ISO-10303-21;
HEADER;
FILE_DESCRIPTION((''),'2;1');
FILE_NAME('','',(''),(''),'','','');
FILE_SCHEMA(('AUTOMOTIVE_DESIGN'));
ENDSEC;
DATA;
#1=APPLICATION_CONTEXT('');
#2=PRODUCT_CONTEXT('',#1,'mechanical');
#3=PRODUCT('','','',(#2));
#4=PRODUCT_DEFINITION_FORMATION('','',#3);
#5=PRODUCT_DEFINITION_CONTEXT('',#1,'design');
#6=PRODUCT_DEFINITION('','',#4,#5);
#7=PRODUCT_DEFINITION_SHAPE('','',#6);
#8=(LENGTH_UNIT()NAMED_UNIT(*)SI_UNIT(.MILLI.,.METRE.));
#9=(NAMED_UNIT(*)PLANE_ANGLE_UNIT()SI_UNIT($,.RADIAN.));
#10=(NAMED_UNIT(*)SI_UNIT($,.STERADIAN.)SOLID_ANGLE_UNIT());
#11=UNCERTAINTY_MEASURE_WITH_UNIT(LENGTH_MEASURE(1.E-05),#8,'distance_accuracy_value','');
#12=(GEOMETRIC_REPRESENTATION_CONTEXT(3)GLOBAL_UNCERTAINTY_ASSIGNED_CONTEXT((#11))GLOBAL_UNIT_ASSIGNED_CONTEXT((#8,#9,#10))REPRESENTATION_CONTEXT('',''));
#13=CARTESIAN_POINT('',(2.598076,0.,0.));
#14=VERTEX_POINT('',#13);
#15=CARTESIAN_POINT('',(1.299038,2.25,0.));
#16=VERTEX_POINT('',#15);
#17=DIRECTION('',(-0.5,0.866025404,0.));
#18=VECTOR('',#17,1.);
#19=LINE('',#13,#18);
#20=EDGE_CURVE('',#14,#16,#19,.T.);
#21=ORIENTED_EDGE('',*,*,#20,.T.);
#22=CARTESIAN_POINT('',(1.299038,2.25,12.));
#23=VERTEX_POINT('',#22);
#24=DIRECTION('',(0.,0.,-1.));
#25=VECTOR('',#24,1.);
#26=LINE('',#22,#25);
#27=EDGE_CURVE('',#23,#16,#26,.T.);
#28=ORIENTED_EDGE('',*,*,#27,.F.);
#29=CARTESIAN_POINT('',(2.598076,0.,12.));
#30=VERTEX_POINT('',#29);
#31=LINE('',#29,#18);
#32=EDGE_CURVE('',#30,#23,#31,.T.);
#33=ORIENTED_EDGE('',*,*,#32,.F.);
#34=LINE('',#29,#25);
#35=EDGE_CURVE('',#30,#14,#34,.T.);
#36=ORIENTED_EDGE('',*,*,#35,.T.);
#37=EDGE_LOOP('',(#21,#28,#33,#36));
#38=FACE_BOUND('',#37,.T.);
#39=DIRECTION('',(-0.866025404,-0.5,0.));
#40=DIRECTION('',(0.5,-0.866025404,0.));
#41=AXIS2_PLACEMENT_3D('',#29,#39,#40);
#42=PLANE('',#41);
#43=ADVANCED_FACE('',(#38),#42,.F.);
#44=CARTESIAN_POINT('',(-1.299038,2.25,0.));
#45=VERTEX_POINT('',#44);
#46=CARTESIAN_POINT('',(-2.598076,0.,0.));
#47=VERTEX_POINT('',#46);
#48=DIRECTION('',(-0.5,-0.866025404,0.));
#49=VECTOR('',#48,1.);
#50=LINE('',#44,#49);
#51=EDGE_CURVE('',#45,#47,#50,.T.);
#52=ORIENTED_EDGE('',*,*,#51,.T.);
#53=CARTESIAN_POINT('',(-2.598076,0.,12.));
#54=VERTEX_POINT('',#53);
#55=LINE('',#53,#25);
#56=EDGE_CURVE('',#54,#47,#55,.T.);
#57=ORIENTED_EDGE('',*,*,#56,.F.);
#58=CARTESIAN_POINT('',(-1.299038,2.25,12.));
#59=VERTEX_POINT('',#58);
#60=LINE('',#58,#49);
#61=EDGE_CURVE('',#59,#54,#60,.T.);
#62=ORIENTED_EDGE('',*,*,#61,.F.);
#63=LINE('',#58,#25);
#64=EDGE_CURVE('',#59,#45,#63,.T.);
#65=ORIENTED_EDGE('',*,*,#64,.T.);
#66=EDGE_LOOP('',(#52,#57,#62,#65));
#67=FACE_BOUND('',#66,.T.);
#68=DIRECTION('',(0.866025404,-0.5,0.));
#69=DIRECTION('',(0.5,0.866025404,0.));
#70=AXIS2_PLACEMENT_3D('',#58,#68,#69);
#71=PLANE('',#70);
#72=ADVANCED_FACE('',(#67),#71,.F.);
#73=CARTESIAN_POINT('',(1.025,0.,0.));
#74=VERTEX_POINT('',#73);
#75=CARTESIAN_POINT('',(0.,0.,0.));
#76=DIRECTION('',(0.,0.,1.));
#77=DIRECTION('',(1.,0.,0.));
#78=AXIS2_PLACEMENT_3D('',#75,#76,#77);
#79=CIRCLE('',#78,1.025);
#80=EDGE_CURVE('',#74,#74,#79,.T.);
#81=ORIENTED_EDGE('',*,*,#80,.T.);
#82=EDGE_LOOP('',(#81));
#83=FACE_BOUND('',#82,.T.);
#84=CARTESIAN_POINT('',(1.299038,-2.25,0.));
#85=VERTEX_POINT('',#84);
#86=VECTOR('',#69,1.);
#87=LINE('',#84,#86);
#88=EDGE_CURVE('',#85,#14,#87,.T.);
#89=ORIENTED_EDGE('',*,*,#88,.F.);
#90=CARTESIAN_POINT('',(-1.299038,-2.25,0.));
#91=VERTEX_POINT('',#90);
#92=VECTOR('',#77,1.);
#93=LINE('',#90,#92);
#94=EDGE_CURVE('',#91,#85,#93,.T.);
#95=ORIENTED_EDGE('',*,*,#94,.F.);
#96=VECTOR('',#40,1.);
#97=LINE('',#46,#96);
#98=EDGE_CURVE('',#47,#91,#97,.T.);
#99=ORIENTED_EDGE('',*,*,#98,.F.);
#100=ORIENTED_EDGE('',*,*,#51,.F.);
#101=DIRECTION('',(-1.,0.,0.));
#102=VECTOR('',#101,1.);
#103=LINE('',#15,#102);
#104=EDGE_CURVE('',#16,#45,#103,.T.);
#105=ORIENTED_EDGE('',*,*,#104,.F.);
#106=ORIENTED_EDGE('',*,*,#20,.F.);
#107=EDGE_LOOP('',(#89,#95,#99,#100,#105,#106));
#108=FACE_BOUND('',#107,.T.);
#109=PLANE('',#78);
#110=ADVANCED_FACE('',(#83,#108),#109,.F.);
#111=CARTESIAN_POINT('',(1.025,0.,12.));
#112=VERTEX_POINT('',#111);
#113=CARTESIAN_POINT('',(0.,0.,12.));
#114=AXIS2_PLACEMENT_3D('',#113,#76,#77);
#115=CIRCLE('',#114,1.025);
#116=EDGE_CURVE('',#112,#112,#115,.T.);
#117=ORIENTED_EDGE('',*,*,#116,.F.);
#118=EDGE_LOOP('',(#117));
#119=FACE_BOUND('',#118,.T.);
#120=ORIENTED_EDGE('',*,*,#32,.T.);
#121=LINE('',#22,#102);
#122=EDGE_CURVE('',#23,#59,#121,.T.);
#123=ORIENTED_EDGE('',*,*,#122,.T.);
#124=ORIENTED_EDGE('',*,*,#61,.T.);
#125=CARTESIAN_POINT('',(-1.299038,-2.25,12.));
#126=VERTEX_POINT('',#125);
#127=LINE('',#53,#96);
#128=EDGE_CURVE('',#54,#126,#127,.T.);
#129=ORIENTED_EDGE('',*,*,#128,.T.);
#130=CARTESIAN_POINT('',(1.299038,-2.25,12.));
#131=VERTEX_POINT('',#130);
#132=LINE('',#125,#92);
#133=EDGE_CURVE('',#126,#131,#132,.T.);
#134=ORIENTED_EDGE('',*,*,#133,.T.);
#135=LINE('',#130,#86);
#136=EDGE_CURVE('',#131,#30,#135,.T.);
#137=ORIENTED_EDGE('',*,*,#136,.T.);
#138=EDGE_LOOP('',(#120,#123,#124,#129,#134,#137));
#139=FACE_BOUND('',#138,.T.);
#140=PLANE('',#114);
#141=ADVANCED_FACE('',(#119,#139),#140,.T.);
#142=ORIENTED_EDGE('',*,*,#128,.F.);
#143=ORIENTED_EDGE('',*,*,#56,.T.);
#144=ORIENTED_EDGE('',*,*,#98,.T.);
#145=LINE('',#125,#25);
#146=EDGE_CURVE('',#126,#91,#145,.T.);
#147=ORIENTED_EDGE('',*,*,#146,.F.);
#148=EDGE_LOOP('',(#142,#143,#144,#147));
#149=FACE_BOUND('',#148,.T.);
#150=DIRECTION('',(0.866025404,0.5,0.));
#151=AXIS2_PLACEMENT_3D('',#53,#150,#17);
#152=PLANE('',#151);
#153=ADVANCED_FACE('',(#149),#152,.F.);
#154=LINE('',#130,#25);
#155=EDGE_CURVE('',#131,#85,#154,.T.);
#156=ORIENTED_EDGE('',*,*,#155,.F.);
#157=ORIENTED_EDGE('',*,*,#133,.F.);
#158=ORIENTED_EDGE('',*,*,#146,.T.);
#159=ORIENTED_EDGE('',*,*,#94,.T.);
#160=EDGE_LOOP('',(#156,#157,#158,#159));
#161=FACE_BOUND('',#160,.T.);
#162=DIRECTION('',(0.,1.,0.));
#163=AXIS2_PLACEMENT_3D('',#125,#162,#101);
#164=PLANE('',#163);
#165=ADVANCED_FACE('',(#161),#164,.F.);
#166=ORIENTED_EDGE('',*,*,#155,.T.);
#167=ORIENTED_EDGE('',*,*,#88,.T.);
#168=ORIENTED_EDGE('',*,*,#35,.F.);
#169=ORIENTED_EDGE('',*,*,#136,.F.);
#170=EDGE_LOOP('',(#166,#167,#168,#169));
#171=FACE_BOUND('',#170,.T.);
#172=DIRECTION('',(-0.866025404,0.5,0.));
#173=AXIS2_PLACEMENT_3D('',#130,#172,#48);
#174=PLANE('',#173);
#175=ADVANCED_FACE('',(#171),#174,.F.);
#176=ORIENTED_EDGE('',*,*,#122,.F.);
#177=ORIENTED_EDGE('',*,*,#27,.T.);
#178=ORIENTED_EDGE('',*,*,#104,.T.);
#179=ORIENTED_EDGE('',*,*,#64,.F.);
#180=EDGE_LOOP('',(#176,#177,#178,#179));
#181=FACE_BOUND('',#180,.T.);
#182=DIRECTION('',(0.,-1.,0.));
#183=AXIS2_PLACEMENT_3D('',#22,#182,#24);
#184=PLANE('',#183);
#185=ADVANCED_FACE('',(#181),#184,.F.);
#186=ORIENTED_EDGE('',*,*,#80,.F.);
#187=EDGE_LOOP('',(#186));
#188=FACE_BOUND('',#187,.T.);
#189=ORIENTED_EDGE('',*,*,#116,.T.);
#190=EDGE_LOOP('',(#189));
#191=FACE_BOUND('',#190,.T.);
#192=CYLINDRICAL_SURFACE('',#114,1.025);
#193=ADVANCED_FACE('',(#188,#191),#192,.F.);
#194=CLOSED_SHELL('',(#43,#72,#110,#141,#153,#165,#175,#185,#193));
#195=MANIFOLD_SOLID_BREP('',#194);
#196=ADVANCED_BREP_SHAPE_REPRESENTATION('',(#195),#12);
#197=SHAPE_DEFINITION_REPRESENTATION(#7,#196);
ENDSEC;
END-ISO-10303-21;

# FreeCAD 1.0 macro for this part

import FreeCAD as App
import Part
import Sketcher
Q = App.Units.Quantity

doc = App.newDocument("Part")
body = doc.addObject("PartDesign::Body", "Body")

sketch1 = body.newObject("Sketcher::SketchObject", "Sketch")
sketch1.AttachmentSupport = (doc.getObject("XY_Plane"), [""])
sketch1.MapMode = "FlatFace"
sketch1.addGeometry(Part.LineSegment(App.Vector(-1.299038, 2.25, 0), App.Vector(-2.598076, 0, 0)), False)
sketch1.addGeometry(Part.LineSegment(App.Vector(-2.598076, 0, 0), App.Vector(-1.299038, -2.25, 0)), False)
sketch1.addGeometry(Part.LineSegment(App.Vector(-1.299038, -2.25, 0), App.Vector(1.299038, -2.25, 0)), False)
sketch1.addGeometry(Part.LineSegment(App.Vector(1.299038, -2.25, 0), App.Vector(2.598076, 0, 0)), False)
sketch1.addGeometry(Part.LineSegment(App.Vector(2.598076, 0, 0), App.Vector(1.299038, 2.25, 0)), False)
sketch1.addGeometry(Part.LineSegment(App.Vector(1.299038, 2.25, 0), App.Vector(-1.299038, 2.25, 0)), False)
sketch1.addConstraint(Sketcher.Constraint("Coincident", 0, 2, 1, 1))
sketch1.addConstraint(Sketcher.Constraint("Coincident", 1, 2, 2, 1))
sketch1.addConstraint(Sketcher.Constraint("Coincident", 2, 2, 3, 1))
sketch1.addConstraint(Sketcher.Constraint("Coincident", 3, 2, 4, 1))
sketch1.addConstraint(Sketcher.Constraint("Coincident", 4, 2, 5, 1))
sketch1.addConstraint(Sketcher.Constraint("Coincident", 5, 2, 0, 1))
sketch1.addConstraint(Sketcher.Constraint("Horizontal", 2))
sketch1.addConstraint(Sketcher.Constraint("Horizontal", 5))
sketch1.addConstraint(Sketcher.Constraint("Symmetric", 0, 2, 3, 2, -1, 1))
sketch1.addConstraint(Sketcher.Constraint("Symmetric", 1, 2, 4, 2, -1, 1))
sketch1.addConstraint(Sketcher.Constraint("PointOnObject", 0, 2, -1))
sketch1.addConstraint(Sketcher.Constraint("Parallel", 0, 3))
sketch1.addConstraint(Sketcher.Constraint("Vertical", 2, 2, 4, 2))
sketch1.addConstraint(Sketcher.Constraint("Angle", 0, Q("-120 deg")))
sketch1.addConstraint(Sketcher.Constraint("DistanceY", 2, 2, 4, 2, Q("4.5 mm")))
sketch1.addConstraint(Sketcher.Constraint("DistanceX", 2, 1, 2, 2, Q("2.598076 mm")))
pad1 = body.newObject("PartDesign::Pad", "Pad")
pad1.Profile = sketch1
pad1.Length = 12

sketch2 = body.newObject("Sketcher::SketchObject", "Sketch001")
sketch2.AttachmentSupport = (doc.getObject("XY_Plane"), [""])
sketch2.MapMode = "FlatFace"
sketch2.AttachmentOffset = App.Placement(App.Vector(0, 0, 12), App.Rotation())
sketch2.addGeometry(Part.Circle(App.Vector(0, 0, 0), App.Vector(0, 0, 1), 1.025), False)
sketch2.addConstraint(Sketcher.Constraint("Coincident", 0, 3, -1, 1))
sketch2.addConstraint(Sketcher.Constraint("Diameter", 0, Q("2.05 mm")))
doc.recompute()
hole = body.newObject("PartDesign::Hole", "Hole")
hole.Profile = sketch2
hole.ThreadType = "None"
hole.Diameter = 2.05
hole.DepthType = "Dimension"
hole.Depth = 21.35
hole.DrillPoint = "Angled"
hole.DrillPointAngle = 118

doc.recompute()
